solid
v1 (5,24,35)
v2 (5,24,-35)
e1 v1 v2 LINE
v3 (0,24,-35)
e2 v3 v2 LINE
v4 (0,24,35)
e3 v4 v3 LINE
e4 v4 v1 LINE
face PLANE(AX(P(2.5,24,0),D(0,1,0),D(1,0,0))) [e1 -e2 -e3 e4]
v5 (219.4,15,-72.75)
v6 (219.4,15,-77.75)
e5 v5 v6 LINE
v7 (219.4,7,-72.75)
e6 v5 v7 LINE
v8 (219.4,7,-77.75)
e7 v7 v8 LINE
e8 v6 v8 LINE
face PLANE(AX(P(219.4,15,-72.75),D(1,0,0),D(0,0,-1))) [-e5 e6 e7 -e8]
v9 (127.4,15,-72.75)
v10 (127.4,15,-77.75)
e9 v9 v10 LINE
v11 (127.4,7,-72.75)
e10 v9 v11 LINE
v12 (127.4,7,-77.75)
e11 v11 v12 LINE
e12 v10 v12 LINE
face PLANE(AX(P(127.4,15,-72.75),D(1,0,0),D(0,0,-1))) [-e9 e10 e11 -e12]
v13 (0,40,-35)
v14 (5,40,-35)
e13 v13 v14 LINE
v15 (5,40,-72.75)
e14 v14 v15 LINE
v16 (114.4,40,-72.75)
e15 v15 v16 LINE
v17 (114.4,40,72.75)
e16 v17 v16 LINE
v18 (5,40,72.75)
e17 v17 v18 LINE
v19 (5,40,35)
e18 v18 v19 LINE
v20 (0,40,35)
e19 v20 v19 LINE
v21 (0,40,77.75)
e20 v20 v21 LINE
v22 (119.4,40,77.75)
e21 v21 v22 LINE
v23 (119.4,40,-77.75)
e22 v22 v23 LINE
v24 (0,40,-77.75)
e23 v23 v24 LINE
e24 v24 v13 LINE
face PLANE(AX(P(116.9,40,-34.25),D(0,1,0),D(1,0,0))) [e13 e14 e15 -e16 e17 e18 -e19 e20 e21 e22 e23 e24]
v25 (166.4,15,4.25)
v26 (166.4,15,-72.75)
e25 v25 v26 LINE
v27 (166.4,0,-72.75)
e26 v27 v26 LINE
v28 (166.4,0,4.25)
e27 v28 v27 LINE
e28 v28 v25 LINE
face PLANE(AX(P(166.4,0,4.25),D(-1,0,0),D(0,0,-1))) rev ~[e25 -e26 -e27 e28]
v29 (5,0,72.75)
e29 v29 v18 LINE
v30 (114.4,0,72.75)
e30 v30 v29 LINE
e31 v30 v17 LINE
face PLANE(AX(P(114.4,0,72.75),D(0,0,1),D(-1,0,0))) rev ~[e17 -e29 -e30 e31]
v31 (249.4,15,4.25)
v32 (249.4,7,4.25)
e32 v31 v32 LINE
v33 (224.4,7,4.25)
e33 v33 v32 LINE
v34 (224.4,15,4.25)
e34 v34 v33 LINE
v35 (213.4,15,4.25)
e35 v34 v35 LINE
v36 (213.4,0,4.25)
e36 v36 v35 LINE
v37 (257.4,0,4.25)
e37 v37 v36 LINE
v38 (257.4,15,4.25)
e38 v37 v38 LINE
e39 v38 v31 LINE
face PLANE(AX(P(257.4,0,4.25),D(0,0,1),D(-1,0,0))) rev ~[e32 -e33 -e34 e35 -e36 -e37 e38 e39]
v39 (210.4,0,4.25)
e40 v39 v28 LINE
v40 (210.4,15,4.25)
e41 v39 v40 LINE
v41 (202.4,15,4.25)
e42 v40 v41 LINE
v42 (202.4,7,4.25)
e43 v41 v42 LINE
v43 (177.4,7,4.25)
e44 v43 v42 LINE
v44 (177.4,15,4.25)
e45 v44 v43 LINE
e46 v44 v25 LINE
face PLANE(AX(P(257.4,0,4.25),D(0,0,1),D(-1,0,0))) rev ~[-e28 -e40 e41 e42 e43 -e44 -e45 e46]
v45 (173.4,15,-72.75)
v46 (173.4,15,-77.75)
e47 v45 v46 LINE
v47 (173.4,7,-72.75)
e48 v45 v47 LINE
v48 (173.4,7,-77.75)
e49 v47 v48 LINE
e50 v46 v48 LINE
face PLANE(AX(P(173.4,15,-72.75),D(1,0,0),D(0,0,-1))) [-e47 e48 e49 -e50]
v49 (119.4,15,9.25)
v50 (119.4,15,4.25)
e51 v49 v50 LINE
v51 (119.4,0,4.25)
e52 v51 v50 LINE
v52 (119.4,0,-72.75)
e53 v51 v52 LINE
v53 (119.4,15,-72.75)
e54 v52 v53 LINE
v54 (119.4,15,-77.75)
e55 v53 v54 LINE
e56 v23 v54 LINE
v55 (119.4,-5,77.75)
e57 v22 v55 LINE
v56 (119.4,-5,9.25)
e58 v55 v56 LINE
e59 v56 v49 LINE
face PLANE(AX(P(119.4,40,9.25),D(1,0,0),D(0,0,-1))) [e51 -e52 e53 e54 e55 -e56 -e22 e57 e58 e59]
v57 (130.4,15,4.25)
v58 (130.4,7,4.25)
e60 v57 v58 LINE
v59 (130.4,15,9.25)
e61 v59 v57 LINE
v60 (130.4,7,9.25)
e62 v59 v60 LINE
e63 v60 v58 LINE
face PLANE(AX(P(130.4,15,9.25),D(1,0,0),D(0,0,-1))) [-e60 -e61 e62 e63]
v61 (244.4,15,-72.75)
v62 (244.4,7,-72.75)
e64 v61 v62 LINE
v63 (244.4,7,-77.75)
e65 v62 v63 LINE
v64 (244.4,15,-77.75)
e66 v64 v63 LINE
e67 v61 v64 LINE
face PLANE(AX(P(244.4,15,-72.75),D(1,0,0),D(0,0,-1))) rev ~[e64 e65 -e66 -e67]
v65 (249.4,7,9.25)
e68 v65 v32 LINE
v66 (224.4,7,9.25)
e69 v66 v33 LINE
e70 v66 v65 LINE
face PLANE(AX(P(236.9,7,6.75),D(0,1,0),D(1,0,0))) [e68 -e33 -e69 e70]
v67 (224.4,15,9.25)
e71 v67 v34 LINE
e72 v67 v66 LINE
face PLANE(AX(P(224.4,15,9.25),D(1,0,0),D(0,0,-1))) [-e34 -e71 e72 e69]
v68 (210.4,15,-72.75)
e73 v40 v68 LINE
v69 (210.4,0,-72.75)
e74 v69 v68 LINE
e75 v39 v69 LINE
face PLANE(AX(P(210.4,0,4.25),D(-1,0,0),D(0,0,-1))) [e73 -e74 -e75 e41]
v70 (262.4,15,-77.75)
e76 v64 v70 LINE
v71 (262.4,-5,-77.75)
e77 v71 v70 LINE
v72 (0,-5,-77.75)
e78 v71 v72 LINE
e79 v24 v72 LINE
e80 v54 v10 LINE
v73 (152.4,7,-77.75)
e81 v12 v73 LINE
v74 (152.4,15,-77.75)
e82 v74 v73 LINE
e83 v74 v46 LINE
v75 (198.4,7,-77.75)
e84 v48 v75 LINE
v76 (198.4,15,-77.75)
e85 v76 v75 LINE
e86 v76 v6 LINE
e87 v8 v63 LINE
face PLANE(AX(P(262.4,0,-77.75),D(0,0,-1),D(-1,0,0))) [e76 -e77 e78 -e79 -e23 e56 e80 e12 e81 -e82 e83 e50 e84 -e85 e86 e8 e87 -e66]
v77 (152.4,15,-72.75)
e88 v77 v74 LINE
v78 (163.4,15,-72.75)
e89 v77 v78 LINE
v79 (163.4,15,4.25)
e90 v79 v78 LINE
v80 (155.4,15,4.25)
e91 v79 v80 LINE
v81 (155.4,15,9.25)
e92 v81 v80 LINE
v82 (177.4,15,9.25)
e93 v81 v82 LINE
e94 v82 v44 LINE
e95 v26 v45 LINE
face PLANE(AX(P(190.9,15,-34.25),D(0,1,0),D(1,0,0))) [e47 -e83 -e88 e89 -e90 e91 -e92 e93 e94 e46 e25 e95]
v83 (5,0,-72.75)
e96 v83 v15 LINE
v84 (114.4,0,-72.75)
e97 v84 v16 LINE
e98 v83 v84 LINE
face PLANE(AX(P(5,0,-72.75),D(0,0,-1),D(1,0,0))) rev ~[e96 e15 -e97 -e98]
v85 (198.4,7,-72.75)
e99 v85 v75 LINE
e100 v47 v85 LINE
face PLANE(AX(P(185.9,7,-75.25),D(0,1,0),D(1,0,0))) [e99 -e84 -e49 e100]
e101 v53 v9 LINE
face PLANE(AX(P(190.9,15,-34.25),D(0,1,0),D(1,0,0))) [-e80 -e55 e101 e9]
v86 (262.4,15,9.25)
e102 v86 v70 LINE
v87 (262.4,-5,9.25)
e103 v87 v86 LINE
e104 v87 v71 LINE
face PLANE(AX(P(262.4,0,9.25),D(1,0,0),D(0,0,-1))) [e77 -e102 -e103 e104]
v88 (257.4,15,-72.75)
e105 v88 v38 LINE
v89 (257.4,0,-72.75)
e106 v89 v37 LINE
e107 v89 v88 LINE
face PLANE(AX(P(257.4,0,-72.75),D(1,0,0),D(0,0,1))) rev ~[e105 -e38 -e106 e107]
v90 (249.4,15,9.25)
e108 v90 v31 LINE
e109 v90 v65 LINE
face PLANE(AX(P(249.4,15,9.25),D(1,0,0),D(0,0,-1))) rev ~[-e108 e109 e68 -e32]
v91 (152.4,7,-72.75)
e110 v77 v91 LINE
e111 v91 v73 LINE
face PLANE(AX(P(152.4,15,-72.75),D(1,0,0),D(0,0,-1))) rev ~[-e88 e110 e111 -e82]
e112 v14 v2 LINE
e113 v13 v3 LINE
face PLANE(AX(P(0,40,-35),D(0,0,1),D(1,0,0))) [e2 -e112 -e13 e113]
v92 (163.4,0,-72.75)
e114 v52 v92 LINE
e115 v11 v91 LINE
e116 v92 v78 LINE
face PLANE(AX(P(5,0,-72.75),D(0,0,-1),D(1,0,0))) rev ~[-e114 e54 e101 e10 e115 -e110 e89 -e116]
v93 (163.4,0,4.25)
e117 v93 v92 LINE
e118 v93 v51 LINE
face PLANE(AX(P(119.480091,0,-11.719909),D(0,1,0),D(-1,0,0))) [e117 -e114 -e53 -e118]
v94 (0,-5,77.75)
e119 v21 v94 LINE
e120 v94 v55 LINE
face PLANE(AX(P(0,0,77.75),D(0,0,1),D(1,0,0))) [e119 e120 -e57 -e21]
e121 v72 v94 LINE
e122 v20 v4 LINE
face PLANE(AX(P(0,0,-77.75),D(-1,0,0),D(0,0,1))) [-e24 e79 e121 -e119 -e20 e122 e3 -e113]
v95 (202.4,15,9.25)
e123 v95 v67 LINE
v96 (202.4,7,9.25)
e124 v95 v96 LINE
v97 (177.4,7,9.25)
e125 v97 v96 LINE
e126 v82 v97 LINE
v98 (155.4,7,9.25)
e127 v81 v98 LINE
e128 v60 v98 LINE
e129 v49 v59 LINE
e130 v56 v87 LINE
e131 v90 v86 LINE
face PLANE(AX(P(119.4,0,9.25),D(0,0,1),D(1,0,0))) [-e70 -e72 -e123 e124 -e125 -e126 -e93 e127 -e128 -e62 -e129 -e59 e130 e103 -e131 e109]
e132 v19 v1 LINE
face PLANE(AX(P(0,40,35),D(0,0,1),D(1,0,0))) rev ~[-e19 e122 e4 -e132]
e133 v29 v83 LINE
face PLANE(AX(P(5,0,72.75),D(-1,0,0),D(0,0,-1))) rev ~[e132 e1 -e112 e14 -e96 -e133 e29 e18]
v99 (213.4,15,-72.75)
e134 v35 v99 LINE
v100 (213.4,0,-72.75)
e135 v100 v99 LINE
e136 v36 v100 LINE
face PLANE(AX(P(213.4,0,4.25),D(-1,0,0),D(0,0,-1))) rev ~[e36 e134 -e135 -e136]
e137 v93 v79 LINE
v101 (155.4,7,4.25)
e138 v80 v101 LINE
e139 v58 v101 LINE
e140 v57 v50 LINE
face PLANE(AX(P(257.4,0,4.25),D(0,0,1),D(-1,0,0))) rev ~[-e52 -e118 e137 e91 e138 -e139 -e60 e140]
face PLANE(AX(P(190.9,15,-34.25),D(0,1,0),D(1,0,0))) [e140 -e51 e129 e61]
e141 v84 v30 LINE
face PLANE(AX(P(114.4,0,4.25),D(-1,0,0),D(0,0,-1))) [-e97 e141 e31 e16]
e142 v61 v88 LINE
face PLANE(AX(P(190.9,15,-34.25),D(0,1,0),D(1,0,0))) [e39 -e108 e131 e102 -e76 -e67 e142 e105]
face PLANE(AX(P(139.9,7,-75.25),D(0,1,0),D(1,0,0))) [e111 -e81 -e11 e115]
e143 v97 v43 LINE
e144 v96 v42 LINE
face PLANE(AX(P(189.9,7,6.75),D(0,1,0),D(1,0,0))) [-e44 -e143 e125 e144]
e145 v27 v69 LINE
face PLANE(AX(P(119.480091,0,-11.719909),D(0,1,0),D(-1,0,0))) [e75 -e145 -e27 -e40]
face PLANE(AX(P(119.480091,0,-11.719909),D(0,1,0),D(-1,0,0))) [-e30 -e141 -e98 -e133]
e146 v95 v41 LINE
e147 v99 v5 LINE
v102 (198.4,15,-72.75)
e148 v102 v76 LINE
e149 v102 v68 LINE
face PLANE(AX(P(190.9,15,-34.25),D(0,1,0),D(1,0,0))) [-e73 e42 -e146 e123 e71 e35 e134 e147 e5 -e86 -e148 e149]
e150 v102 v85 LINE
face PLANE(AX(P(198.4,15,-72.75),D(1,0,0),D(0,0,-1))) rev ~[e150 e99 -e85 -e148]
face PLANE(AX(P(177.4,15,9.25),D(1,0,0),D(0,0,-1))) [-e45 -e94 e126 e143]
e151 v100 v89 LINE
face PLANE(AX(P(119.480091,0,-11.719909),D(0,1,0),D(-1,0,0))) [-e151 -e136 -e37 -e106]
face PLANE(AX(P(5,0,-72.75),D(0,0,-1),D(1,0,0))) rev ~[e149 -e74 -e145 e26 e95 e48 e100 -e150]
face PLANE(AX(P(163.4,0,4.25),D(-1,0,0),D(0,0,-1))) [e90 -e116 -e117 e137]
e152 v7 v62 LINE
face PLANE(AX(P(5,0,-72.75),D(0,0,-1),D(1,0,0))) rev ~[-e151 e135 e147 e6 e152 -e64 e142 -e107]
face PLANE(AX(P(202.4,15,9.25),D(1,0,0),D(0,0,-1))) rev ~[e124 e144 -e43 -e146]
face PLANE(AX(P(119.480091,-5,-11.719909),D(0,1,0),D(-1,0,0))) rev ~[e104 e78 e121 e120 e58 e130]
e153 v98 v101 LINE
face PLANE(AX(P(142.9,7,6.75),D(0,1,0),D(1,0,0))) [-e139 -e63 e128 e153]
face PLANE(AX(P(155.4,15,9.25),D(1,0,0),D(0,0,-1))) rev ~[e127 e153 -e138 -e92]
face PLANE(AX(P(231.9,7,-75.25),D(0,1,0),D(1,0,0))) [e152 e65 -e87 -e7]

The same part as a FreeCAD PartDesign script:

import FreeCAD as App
import Part
import Sketcher
Q = App.Units.Quantity


def add_polygon(sketch, points):
    """Adds a closed chain of lines whose ends are joined by coincident constraints."""
    first, n = sketch.GeometryCount, len(points)
    for a, b in zip(points, points[1:] + points[:1]):
        sketch.addGeometry(Part.LineSegment(App.Vector(*a, 0), App.Vector(*b, 0)), False)
    for i in range(n):
        sketch.addConstraint(Sketcher.Constraint("Coincident", first + i, 2, first + (i + 1) % n, 1))

doc = App.newDocument("Part")
body = doc.addObject("PartDesign::Body", "Body")

# Sketch on XZ plane
sketch1 = body.newObject("Sketcher::SketchObject", "Sketch")
sketch1.AttachmentSupport = (doc.getObject("XZ_Plane"), [""])
sketch1.MapMode = "FlatFace"
add_polygon(sketch1, [(0, -78), (0, 78), (119, 78), (119, 9), (262, 9), (262, -78)])  # lines 0-5
add_polygon(sketch1, [(5, 73), (5, -73), (257, -73), (257, 4), (114, 4), (114, 73)])  # lines 6-11
sketch1.addConstraint(Sketcher.Constraint("Vertical", 0))
sketch1.addConstraint(Sketcher.Constraint("Horizontal", 1))
sketch1.addConstraint(Sketcher.Constraint("Vertical", 2))
sketch1.addConstraint(Sketcher.Constraint("Horizontal", 3))
sketch1.addConstraint(Sketcher.Constraint("Vertical", 4))
sketch1.addConstraint(Sketcher.Constraint("Horizontal", 5))
sketch1.addConstraint(Sketcher.Constraint("Vertical", 6))
sketch1.addConstraint(Sketcher.Constraint("Horizontal", 7))
sketch1.addConstraint(Sketcher.Constraint("Vertical", 8))
sketch1.addConstraint(Sketcher.Constraint("Horizontal", 9))
sketch1.addConstraint(Sketcher.Constraint("Vertical", 10))
sketch1.addConstraint(Sketcher.Constraint("Horizontal", 11))
sketch1.addConstraint(Sketcher.Constraint("Symmetric", 0, 2, 5, 2, -1, 1))
sketch1.addConstraint(Sketcher.Constraint("Equal", 3, 9))
sketch1.addConstraint(Sketcher.Constraint("Equal", 2, 10))
sketch1.addConstraint(Sketcher.Constraint("DistanceX", 3, 1, 3, 2, Q("143 mm")))
sketch1.addConstraint(Sketcher.Constraint("DistanceY", 4, 2, 4, 1, Q("87 mm")))
sketch1.addConstraint(Sketcher.Constraint("DistanceY", 8, 1, 8, 2, Q("77 mm")))
sketch1.addConstraint(Sketcher.Constraint("DistanceX", 1, 1, 1, 2, Q("119.4 mm")))
sketch1.addConstraint(Sketcher.Constraint("DistanceX", 7, 1, 7, 2, Q("252.4 mm")))
sketch1.addConstraint(Sketcher.Constraint("DistanceY", 0, 1, 0, 2, Q("155.5 mm")))
sketch1.addConstraint(Sketcher.Constraint("DistanceX", -1, 1, 6, 2, Q("5 mm")))
sketch1.addConstraint(Sketcher.Constraint("DistanceY", 5, 2, 6, 2, Q("5 mm")))
pad1 = body.newObject("PartDesign::Pad", "Pad")
pad1.Profile = sketch1
pad1.Length = 40
pad1.Reversed = True

# Sketch on XZ plane
sketch2 = body.newObject("Sketcher::SketchObject", "Sketch001")
sketch2.AttachmentSupport = (doc.getObject("XZ_Plane"), [""])
sketch2.MapMode = "FlatFace"
add_polygon(sketch2, [(119, 9), (119, 78), (0, 78), (0, -78), (262, -78), (262, 9)])  # lines 0-5
sketch2.addConstraint(Sketcher.Constraint("Vertical", 0))
sketch2.addConstraint(Sketcher.Constraint("Horizontal", 1))
sketch2.addConstraint(Sketcher.Constraint("Vertical", 2))
sketch2.addConstraint(Sketcher.Constraint("Horizontal", 3))
sketch2.addConstraint(Sketcher.Constraint("Vertical", 4))
sketch2.addConstraint(Sketcher.Constraint("Horizontal", 5))
sketch2.addConstraint(Sketcher.Constraint("Symmetric", 1, 2, 2, 2, -1, 1))
sketch2.addConstraint(Sketcher.Constraint("DistanceX", 5, 2, 5, 1, Q("143 mm")))
sketch2.addConstraint(Sketcher.Constraint("DistanceY", 4, 1, 4, 2, Q("87 mm")))
sketch2.addConstraint(Sketcher.Constraint("DistanceX", 1, 2, 1, 1, Q("119.4 mm")))
sketch2.addConstraint(Sketcher.Constraint("DistanceY", 0, 1, 0, 2, Q("68.5 mm")))
pad2 = body.newObject("PartDesign::Pad", "Pad001")
pad2.Profile = sketch2
pad2.Length = 5

# Sketch on XZ plane
sketch3 = body.newObject("Sketcher::SketchObject", "Sketch002")
sketch3.AttachmentSupport = (doc.getObject("XZ_Plane"), [""])
sketch3.MapMode = "FlatFace"
add_polygon(sketch3, [(114.4, -72.8), (114.4, 4.2), (119.4, 4.2), (119.4, -72.8)])  # lines 0-3
add_polygon(sketch3, [(163.4, -72.8), (163.4, 4.2), (166.4, 4.2), (166.4, -72.8)])  # lines 4-7
add_polygon(sketch3, [(210.4, -72.8), (210.4, 4.2), (213.4, 4.2), (213.4, -72.8)])  # lines 8-11
sketch3.addConstraint(Sketcher.Constraint("Vertical", 0))
sketch3.addConstraint(Sketcher.Constraint("Horizontal", 1))
sketch3.addConstraint(Sketcher.Constraint("Vertical", 2))
sketch3.addConstraint(Sketcher.Constraint("Horizontal", 3))
sketch3.addConstraint(Sketcher.Constraint("Vertical", 4))
sketch3.addConstraint(Sketcher.Constraint("Horizontal", 5))
sketch3.addConstraint(Sketcher.Constraint("Vertical", 6))
sketch3.addConstraint(Sketcher.Constraint("Horizontal", 7))
sketch3.addConstraint(Sketcher.Constraint("Vertical", 8))
sketch3.addConstraint(Sketcher.Constraint("Horizontal", 9))
sketch3.addConstraint(Sketcher.Constraint("Vertical", 10))
sketch3.addConstraint(Sketcher.Constraint("Horizontal", 11))
sketch3.addConstraint(Sketcher.Constraint("Horizontal", 1, 2, 4, 2))
sketch3.addConstraint(Sketcher.Constraint("Horizontal", 3, 2, 6, 2))
sketch3.addConstraint(Sketcher.Constraint("Horizontal", 5, 2, 8, 2))
sketch3.addConstraint(Sketcher.Constraint("Horizontal", 7, 2, 10, 2))
sketch3.addConstraint(Sketcher.Constraint("Equal", 7, 9))
sketch3.addConstraint(Sketcher.Constraint("DistanceX", 1, 1, 1, 2, Q("5 mm")))
sketch3.addConstraint(Sketcher.Constraint("DistanceX", 5, 1, 5, 2, Q("3 mm")))
sketch3.addConstraint(Sketcher.Constraint("DistanceY", 0, 1, 0, 2, Q("77 mm")))
sketch3.addConstraint(Sketcher.Constraint("DistanceX", 1, 2, 4, 2, Q("44 mm")))
sketch3.addConstraint(Sketcher.Constraint("DistanceX", 5, 2, 8, 2, Q("44 mm")))
sketch3.addConstraint(Sketcher.Constraint("DistanceX", -1, 1, 0, 2, Q("114.4 mm")))
sketch3.addConstraint(Sketcher.Constraint("DistanceY", -1, 1, 0, 2, Q("4.25 mm")))
pad3 = body.newObject("PartDesign::Pad", "Pad002")
pad3.Profile = sketch3
pad3.Length = 40
pad3.Reversed = True

# Sketch on XZ plane
sketch4 = body.newObject("Sketcher::SketchObject", "Sketch003")
sketch4.AttachmentSupport = (doc.getObject("XZ_Plane"), [""])
sketch4.MapMode = "FlatFace"
sketch4.AttachmentOffset = App.Placement(App.Vector(0, 0, -40), App.Rotation())
add_polygon(sketch4, [(119, -78), (119, 9), (262, 9), (262, -78)])  # lines 0-3
sketch4.addConstraint(Sketcher.Constraint("Vertical", 0))
sketch4.addConstraint(Sketcher.Constraint("Horizontal", 1))
sketch4.addConstraint(Sketcher.Constraint("Vertical", 2))
sketch4.addConstraint(Sketcher.Constraint("Horizontal", 3))
sketch4.addConstraint(Sketcher.Constraint("DistanceX", 1, 1, 1, 2, Q("143 mm")))
sketch4.addConstraint(Sketcher.Constraint("DistanceY", 0, 1, 0, 2, Q("87 mm")))
sketch4.addConstraint(Sketcher.Constraint("DistanceX", -1, 1, 0, 2, Q("119.4 mm")))
sketch4.addConstraint(Sketcher.Constraint("DistanceY", -1, 1, 0, 2, Q("9.25 mm")))
pocket1 = body.newObject("PartDesign::Pocket", "Pocket")
pocket1.Profile = sketch4
pocket1.Length = 25
pocket1.Reversed = True

# Sketch on XZ plane
sketch5 = body.newObject("Sketcher::SketchObject", "Sketch004")
sketch5.AttachmentSupport = (doc.getObject("XZ_Plane"), [""])
sketch5.MapMode = "FlatFace"
sketch5.AttachmentOffset = App.Placement(App.Vector(0, 0, -15), App.Rotation())
add_polygon(sketch5, [(130, 4), (130, 9), (155, 9), (155, 4)])  # lines 0-3
add_polygon(sketch5, [(177, 4), (177, 9), (202, 9), (202, 4)])  # lines 4-7
add_polygon(sketch5, [(224, 4), (224, 9), (249, 9), (249, 4)])  # lines 8-11
add_polygon(sketch5, [(127, -78), (127, -73), (152, -73), (152, -78)])  # lines 12-15
add_polygon(sketch5, [(173, -78), (173, -73), (198, -73), (198, -78)])  # lines 16-19
add_polygon(sketch5, [(219, -78), (219, -73), (244, -73), (244, -78)])  # lines 20-23
sketch5.addConstraint(Sketcher.Constraint("Vertical", 0))
sketch5.addConstraint(Sketcher.Constraint("Horizontal", 1))
sketch5.addConstraint(Sketcher.Constraint("Vertical", 2))
sketch5.addConstraint(Sketcher.Constraint("Horizontal", 3))
sketch5.addConstraint(Sketcher.Constraint("Vertical", 4))
sketch5.addConstraint(Sketcher.Constraint("Horizontal", 5))
sketch5.addConstraint(Sketcher.Constraint("Vertical", 6))
sketch5.addConstraint(Sketcher.Constraint("Horizontal", 7))
sketch5.addConstraint(Sketcher.Constraint("Vertical", 8))
sketch5.addConstraint(Sketcher.Constraint("Horizontal", 9))
sketch5.addConstraint(Sketcher.Constraint("Vertical", 10))
sketch5.addConstraint(Sketcher.Constraint("Horizontal", 11))
sketch5.addConstraint(Sketcher.Constraint("Vertical", 12))
sketch5.addConstraint(Sketcher.Constraint("Horizontal", 13))
sketch5.addConstraint(Sketcher.Constraint("Vertical", 14))
sketch5.addConstraint(Sketcher.Constraint("Horizontal", 15))
sketch5.addConstraint(Sketcher.Constraint("Vertical", 16))
sketch5.addConstraint(Sketcher.Constraint("Horizontal", 17))
sketch5.addConstraint(Sketcher.Constraint("Vertical", 18))
sketch5.addConstraint(Sketcher.Constraint("Horizontal", 19))
sketch5.addConstraint(Sketcher.Constraint("Vertical", 20))
sketch5.addConstraint(Sketcher.Constraint("Horizontal", 21))
sketch5.addConstraint(Sketcher.Constraint("Vertical", 22))
sketch5.addConstraint(Sketcher.Constraint("Horizontal", 23))
sketch5.addConstraint(Sketcher.Constraint("Horizontal", 1, 2, 4, 2))
sketch5.addConstraint(Sketcher.Constraint("Horizontal", 3, 2, 6, 2))
sketch5.addConstraint(Sketcher.Constraint("Horizontal", 5, 2, 8, 2))
sketch5.addConstraint(Sketcher.Constraint("Horizontal", 7, 2, 10, 2))
sketch5.addConstraint(Sketcher.Constraint("Horizontal", 13, 2, 16, 2))
sketch5.addConstraint(Sketcher.Constraint("Horizontal", 15, 2, 18, 2))
sketch5.addConstraint(Sketcher.Constraint("Horizontal", 17, 2, 20, 2))
sketch5.addConstraint(Sketcher.Constraint("Horizontal", 19, 2, 22, 2))
sketch5.addConstraint(Sketcher.Constraint("Equal", 3, 5))
sketch5.addConstraint(Sketcher.Constraint("Equal", 7, 9))
sketch5.addConstraint(Sketcher.Constraint("Equal", 11, 13))
sketch5.addConstraint(Sketcher.Constraint("Equal", 15, 17))
sketch5.addConstraint(Sketcher.Constraint("Equal", 19, 21))
sketch5.addConstraint(Sketcher.Constraint("Equal", 10, 12))
sketch5.addConstraint(Sketcher.Constraint("DistanceX", 1, 1, 1, 2, Q("25 mm")))
sketch5.addConstraint(Sketcher.Constraint("DistanceY", 0, 1, 0, 2, Q("5 mm")))
sketch5.addConstraint(Sketcher.Constraint("DistanceX", 1, 2, 4, 2, Q("22 mm")))
sketch5.addConstraint(Sketcher.Constraint("DistanceX", 5, 2, 8, 2, Q("22 mm")))
sketch5.addConstraint(Sketcher.Constraint("DistanceX", 12, 2, 3, 2, Q("3 mm")))
sketch5.addConstraint(Sketcher.Constraint("DistanceY", 12, 2, 3, 2, Q("77 mm")))
sketch5.addConstraint(Sketcher.Constraint("DistanceX", 13, 2, 16, 2, Q("21 mm")))
sketch5.addConstraint(Sketcher.Constraint("DistanceX", 17, 2, 20, 2, Q("21 mm")))
sketch5.addConstraint(Sketcher.Constraint("DistanceX", -1, 1, 0, 2, Q("130.4 mm")))
sketch5.addConstraint(Sketcher.Constraint("DistanceY", -1, 1, 0, 2, Q("9.25 mm")))
pocket2 = body.newObject("PartDesign::Pocket", "Pocket001")
pocket2.Profile = sketch5
pocket2.Length = 8
pocket2.Reversed = True

# Sketch on XZ plane
sketch6 = body.newObject("Sketcher::SketchObject", "Sketch005")
sketch6.AttachmentSupport = (doc.getObject("XZ_Plane"), [""])
sketch6.MapMode = "FlatFace"
sketch6.AttachmentOffset = App.Placement(App.Vector(0, 0, -40), App.Rotation())
add_polygon(sketch6, [(0, -35), (0, 35), (5, 35), (5, -35)])  # lines 0-3
sketch6.addConstraint(Sketcher.Constraint("Vertical", 0))
sketch6.addConstraint(Sketcher.Constraint("Horizontal", 1))
sketch6.addConstraint(Sketcher.Constraint("Vertical", 2))
sketch6.addConstraint(Sketcher.Constraint("Horizontal", 3))
sketch6.addConstraint(Sketcher.Constraint("Symmetric", 0, 2, 3, 2, -1, 1))
sketch6.addConstraint(Sketcher.Constraint("DistanceX", 1, 1, 1, 2, Q("5 mm")))
sketch6.addConstraint(Sketcher.Constraint("DistanceY", 0, 1, 0, 2, Q("70 mm")))
pocket3 = body.newObject("PartDesign::Pocket", "Pocket002")
pocket3.Profile = sketch6
pocket3.Length = 16
pocket3.Reversed = True

doc.recompute()
